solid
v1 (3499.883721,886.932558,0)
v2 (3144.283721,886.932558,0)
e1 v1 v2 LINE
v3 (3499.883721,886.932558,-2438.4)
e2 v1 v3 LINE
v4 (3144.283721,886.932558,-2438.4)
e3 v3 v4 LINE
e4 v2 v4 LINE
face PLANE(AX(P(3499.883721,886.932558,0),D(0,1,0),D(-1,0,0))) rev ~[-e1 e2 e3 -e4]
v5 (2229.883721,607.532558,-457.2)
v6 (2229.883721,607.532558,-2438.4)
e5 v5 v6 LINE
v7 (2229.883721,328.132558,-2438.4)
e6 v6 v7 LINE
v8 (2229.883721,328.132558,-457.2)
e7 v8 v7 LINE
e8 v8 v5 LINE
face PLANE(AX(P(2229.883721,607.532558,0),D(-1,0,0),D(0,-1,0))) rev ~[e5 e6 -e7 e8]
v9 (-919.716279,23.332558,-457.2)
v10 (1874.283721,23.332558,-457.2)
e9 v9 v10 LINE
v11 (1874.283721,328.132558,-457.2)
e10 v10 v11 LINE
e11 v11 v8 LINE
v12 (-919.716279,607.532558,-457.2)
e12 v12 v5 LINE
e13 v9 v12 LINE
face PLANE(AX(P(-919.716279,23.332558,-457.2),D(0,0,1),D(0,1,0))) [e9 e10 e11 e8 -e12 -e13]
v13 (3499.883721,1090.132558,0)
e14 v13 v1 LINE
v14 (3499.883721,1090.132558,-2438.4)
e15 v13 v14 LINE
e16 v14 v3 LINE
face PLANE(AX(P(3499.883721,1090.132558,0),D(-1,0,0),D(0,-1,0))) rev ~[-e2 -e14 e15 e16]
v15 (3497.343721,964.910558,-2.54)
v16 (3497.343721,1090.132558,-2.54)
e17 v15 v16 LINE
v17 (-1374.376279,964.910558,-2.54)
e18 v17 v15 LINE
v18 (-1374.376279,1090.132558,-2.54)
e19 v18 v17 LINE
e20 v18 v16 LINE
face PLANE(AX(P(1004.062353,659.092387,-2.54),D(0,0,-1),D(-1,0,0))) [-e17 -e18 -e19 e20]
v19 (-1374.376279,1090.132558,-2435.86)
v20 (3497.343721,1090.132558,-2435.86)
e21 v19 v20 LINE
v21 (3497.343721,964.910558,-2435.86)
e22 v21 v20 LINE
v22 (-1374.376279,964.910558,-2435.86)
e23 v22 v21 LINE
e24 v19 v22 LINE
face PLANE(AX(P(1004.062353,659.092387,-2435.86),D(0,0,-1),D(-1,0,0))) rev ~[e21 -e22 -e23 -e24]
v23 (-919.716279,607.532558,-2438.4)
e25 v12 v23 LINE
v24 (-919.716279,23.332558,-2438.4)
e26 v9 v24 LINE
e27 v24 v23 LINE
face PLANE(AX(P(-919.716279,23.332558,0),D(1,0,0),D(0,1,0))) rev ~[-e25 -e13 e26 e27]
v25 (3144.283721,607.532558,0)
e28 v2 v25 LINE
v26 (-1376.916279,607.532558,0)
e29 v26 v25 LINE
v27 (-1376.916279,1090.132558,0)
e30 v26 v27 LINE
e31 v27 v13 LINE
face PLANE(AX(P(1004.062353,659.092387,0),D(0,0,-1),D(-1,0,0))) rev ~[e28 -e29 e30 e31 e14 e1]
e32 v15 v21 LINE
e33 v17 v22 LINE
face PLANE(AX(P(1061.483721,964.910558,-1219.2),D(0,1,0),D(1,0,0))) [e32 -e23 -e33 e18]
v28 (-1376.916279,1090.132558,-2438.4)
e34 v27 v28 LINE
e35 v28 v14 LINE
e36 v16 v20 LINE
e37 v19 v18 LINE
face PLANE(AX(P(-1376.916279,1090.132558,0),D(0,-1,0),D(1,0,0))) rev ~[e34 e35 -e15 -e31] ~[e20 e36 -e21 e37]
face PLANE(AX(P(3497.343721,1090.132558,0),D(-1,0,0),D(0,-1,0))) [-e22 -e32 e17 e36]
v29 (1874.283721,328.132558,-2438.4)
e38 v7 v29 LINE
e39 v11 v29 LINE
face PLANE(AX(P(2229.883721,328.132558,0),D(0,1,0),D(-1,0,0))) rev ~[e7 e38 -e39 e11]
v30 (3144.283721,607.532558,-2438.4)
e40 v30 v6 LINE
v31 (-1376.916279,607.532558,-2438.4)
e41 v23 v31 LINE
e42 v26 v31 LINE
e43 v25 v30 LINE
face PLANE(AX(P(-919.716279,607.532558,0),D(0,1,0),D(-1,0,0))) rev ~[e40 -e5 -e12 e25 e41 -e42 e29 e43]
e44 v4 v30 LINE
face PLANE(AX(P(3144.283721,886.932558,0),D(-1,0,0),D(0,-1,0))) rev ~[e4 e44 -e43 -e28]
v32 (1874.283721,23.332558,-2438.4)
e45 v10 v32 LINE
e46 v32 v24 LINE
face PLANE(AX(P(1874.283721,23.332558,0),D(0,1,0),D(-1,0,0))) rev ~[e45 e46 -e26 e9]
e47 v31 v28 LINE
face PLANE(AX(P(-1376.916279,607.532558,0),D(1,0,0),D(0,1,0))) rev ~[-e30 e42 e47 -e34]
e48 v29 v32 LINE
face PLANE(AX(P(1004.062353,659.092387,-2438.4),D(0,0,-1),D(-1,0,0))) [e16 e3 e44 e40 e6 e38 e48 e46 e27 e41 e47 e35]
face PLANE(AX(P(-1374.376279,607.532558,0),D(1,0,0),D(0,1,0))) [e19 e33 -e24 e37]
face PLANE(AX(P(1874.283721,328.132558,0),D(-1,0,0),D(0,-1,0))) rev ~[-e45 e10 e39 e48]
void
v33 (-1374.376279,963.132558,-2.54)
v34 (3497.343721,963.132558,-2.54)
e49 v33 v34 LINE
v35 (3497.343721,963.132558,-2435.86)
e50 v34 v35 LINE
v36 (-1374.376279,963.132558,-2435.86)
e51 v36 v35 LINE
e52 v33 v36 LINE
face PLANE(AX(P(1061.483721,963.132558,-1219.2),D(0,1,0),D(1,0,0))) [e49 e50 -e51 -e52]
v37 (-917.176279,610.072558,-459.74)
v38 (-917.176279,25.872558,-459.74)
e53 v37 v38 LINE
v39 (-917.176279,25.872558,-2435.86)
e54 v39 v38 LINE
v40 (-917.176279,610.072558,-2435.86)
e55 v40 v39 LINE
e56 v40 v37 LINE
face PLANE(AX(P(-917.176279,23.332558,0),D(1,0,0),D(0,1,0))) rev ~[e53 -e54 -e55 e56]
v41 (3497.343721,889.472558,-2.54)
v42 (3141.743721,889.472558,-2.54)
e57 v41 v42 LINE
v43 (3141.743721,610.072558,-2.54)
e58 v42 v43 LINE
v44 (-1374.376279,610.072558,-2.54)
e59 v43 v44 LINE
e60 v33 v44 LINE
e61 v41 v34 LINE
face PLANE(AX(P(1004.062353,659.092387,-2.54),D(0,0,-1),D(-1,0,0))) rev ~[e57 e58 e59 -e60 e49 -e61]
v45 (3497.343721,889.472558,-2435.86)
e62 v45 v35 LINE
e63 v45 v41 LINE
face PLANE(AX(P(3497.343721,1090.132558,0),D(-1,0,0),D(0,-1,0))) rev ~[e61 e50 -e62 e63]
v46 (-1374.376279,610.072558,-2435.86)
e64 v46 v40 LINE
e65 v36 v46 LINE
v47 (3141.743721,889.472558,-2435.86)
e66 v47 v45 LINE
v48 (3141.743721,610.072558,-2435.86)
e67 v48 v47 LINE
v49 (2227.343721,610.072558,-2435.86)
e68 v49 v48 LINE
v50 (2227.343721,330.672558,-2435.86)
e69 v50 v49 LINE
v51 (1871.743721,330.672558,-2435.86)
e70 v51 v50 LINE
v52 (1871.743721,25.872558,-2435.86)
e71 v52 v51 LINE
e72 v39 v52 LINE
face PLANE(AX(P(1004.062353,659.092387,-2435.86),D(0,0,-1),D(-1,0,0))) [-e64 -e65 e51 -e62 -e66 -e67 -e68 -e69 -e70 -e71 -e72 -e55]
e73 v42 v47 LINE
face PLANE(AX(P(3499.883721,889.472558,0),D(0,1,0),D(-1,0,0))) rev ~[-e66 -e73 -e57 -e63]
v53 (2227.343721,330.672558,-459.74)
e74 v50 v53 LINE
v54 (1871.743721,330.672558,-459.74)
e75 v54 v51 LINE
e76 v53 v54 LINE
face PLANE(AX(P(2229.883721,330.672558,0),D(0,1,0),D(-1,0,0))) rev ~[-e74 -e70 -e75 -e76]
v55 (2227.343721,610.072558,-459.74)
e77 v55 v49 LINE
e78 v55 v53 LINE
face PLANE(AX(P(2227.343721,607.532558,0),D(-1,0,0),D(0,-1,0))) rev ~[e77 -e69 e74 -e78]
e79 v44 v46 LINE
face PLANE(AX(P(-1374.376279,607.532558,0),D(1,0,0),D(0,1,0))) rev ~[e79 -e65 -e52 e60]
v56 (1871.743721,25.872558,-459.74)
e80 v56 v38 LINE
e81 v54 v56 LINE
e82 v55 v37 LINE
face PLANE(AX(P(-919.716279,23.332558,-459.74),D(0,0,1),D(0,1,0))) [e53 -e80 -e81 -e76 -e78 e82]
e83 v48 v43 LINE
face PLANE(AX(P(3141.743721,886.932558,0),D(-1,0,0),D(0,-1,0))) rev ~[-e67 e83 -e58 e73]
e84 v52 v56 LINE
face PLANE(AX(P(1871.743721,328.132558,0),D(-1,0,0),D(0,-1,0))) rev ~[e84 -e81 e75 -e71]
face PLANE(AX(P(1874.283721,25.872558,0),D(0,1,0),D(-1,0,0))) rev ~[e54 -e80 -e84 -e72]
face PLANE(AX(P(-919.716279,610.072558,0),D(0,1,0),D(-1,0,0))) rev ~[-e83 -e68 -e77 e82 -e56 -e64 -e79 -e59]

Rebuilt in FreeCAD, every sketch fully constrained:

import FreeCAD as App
import Part
import Sketcher

V = App.Vector
Q = App.Units.Quantity


def faces_at(feature, points):
    """Names of the faces that lie closest to the given points."""
    faces = feature.Shape.Faces
    near = lambda p: min(range(len(faces)), key=lambda i: faces[i].distToShape(Part.Vertex(*p))[0])
    return sorted({f"Face{near(p) + 1}" for p in points})


def add_polygon(sketch, points):
    """Adds a closed chain of lines whose ends are joined by coincident constraints."""
    first, n = sketch.GeometryCount, len(points)
    for a, b in zip(points, points[1:] + points[:1]):
        sketch.addGeometry(Part.LineSegment(App.Vector(*a, 0), App.Vector(*b, 0)), False)
    for i in range(n):
        sketch.addConstraint(Sketcher.Constraint("Coincident", first + i, 2, first + (i + 1) % n, 1))

doc = App.newDocument("Part")
body = doc.addObject("PartDesign::Body", "Body")

sketch1 = body.newObject("Sketcher::SketchObject", "Sketch")
sketch1.AttachmentSupport = (doc.getObject("XY_Plane"), [""])
sketch1.MapMode = "FlatFace"
add_polygon(sketch1, [(3499.883721, 1090.132558), (-1376.916279, 1090.132558), (-1376.916279, 607.532558), (-919.716279, 607.532558), (-919.716279, 23.332558), (1874.283721, 23.332558), (1874.283721, 328.132558), (2229.883721, 328.132558), (2229.883721, 607.532558), (3144.283721, 607.532558), (3144.283721, 886.932558), (3499.883721, 886.932558)])
sketch1.addConstraint(Sketcher.Constraint("Horizontal", 0))
sketch1.addConstraint(Sketcher.Constraint("Vertical", 1))
sketch1.addConstraint(Sketcher.Constraint("Horizontal", 2))
sketch1.addConstraint(Sketcher.Constraint("Vertical", 3))
sketch1.addConstraint(Sketcher.Constraint("Horizontal", 4))
sketch1.addConstraint(Sketcher.Constraint("Vertical", 5))
sketch1.addConstraint(Sketcher.Constraint("Horizontal", 6))
sketch1.addConstraint(Sketcher.Constraint("Vertical", 7))
sketch1.addConstraint(Sketcher.Constraint("Horizontal", 8))
sketch1.addConstraint(Sketcher.Constraint("Vertical", 9))
sketch1.addConstraint(Sketcher.Constraint("Horizontal", 10))
sketch1.addConstraint(Sketcher.Constraint("Vertical", 11))
sketch1.addConstraint(Sketcher.Constraint("Horizontal", 2, 2, 7, 2))
sketch1.addConstraint(Sketcher.Constraint("Equal", 6, 10))
sketch1.addConstraint(Sketcher.Constraint("Equal", 7, 9))
sketch1.addConstraint(Sketcher.Constraint("DistanceX", 0, 2, 0, 1, Q("192 in")))
sketch1.addConstraint(Sketcher.Constraint("DistanceX", 2, 1, 2, 2, Q("18 in")))
sketch1.addConstraint(Sketcher.Constraint("DistanceX", 4, 1, 4, 2, Q("110 in")))
sketch1.addConstraint(Sketcher.Constraint("DistanceX", 6, 1, 6, 2, Q("14 in")))
sketch1.addConstraint(Sketcher.Constraint("DistanceY", 1, 2, 1, 1, Q("19 in")))
sketch1.addConstraint(Sketcher.Constraint("DistanceY", 3, 2, 3, 1, Q("23 in")))
sketch1.addConstraint(Sketcher.Constraint("DistanceY", 5, 1, 5, 2, Q("12 in")))
sketch1.addConstraint(Sketcher.Constraint("DistanceX", 0, 2, -1, 1, 1376.916279))
sketch1.addConstraint(Sketcher.Constraint("DistanceY", -1, 1, 0, 2, 1090.132558))
pad1 = body.newObject("PartDesign::Pad", "Pad")
pad1.Profile = sketch1
pad1.Length = Q("96 in")
pad1.Reversed = True

sketch2 = body.newObject("Sketcher::SketchObject", "Sketch001")
sketch2.AttachmentSupport = (doc.getObject("YZ_Plane"), [""])
sketch2.MapMode = "FlatFace"
sketch2.AttachmentOffset = App.Placement(V(0, 0, -919.716279), App.Rotation())
add_polygon(sketch2, [(607.532558, -457.2), (23.332558, -457.2), (23.332558, 0), (607.532558, 0)])
sketch2.addConstraint(Sketcher.Constraint("Horizontal", 0))
sketch2.addConstraint(Sketcher.Constraint("Vertical", 1))
sketch2.addConstraint(Sketcher.Constraint("Horizontal", 2))
sketch2.addConstraint(Sketcher.Constraint("Vertical", 3))
sketch2.addConstraint(Sketcher.Constraint("PointOnObject", 1, 2, -1))
sketch2.addConstraint(Sketcher.Constraint("DistanceX", 0, 2, 0, 1, Q("23 in")))
sketch2.addConstraint(Sketcher.Constraint("DistanceY", 1, 1, 1, 2, Q("18 in")))
sketch2.addConstraint(Sketcher.Constraint("DistanceX", -1, 1, 0, 2, 23.332558))
pocket1 = body.newObject("PartDesign::Pocket", "Pocket")
pocket1.Profile = sketch2
pocket1.Length = Q("150 in")
pocket1.Reversed = True
doc.recompute()

thickness = body.newObject("PartDesign::Thickness", "Thickness")
thickness.Base = (pocket1, faces_at(pocket1, [(1061.484, 1090.133, -1219.2)]))
thickness.Value = Q("0.1 in")
thickness.Reversed = True
thickness.Join = "Intersection"

sketch3 = body.newObject("Sketcher::SketchObject", "Sketch002")
sketch3.AttachmentSupport = (doc.getObject("XZ_Plane"), [""])
sketch3.MapMode = "FlatFace"
sketch3.AttachmentOffset = App.Placement(V(0, 0, -963.132558), App.Rotation())
add_polygon(sketch3, [(-1374.376279, -2435.86), (-1374.376279, -2.54), (3497.343721, -2.54), (3497.343721, -2435.86)])
sketch3.addConstraint(Sketcher.Constraint("Vertical", 0))
sketch3.addConstraint(Sketcher.Constraint("Horizontal", 1))
sketch3.addConstraint(Sketcher.Constraint("Vertical", 2))
sketch3.addConstraint(Sketcher.Constraint("Horizontal", 3))
sketch3.addConstraint(Sketcher.Constraint("DistanceX", 1, 1, 1, 2, Q("191.8 in")))
sketch3.addConstraint(Sketcher.Constraint("DistanceY", 0, 1, 0, 2, Q("95.8 in")))
sketch3.addConstraint(Sketcher.Constraint("DistanceY", 0, 2, -1, 1, Q("0.1 in")))
sketch3.addConstraint(Sketcher.Constraint("DistanceX", 0, 2, -1, 1, 1374.376279))
pad2 = body.newObject("PartDesign::Pad", "Pad001")
pad2.Profile = sketch3
pad2.Length = Q("0.07 in")
pad2.Reversed = True

doc.recompute()
